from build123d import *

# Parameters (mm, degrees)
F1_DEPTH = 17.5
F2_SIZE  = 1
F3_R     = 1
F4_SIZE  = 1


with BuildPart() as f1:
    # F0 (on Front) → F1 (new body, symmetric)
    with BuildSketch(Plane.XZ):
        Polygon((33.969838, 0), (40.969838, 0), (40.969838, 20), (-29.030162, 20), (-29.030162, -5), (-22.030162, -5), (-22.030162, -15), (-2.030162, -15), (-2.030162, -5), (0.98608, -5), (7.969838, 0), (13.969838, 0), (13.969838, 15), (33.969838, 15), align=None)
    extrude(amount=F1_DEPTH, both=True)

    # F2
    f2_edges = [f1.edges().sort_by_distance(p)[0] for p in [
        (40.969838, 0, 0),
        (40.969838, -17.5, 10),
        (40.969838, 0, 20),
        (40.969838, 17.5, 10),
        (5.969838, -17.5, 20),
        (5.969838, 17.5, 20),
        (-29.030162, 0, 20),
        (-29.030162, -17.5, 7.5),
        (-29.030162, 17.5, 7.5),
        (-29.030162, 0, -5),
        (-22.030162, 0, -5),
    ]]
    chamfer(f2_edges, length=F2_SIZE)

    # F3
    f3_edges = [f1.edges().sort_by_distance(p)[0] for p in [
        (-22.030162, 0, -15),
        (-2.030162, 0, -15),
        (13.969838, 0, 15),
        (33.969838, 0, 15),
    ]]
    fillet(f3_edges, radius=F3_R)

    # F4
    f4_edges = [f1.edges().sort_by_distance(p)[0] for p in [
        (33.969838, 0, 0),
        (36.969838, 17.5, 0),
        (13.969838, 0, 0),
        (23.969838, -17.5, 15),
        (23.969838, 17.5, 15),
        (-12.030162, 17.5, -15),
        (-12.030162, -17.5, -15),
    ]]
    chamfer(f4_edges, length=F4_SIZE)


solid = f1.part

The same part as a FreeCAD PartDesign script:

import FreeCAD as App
import Part
import Sketcher
Q = App.Units.Quantity


def edges_at(feature, points):
    """Names of the edges that pass closest to the given points."""
    edges = feature.Shape.Edges
    near = lambda p: min(range(len(edges)), key=lambda i: edges[i].distToShape(Part.Vertex(*p))[0])
    return sorted({f"Edge{near(p) + 1}" for p in points})

doc = App.newDocument("Part")
body = doc.addObject("PartDesign::Body", "Body")

# Sketch on XZ plane
sketch1 = body.newObject("Sketcher::SketchObject", "Sketch")
sketch1.AttachmentSupport = (doc.getObject("XZ_Plane"), [""])
sketch1.MapMode = "FlatFace"
sketch1.addGeometry([
    Part.LineSegment(App.Vector(34, 0, 0), App.Vector(41, 0, 0)),  # 0
    Part.LineSegment(App.Vector(41, 0, 0), App.Vector(41, 20, 0)),  # 1
    Part.LineSegment(App.Vector(41, 20, 0), App.Vector(-29, 20, 0)),  # 2
    Part.LineSegment(App.Vector(-29, 20, 0), App.Vector(-29, -5, 0)),  # 3
    Part.LineSegment(App.Vector(-29, -5, 0), App.Vector(-22, -5, 0)),  # 4
    Part.LineSegment(App.Vector(-22, -5, 0), App.Vector(-22, -15, 0)),  # 5
    Part.LineSegment(App.Vector(-22, -15, 0), App.Vector(-2, -15, 0)),  # 6
    Part.LineSegment(App.Vector(-2, -15, 0), App.Vector(-2, -5, 0)),  # 7
    Part.LineSegment(App.Vector(-2, -5, 0), App.Vector(1, -5, 0)),  # 8
    Part.LineSegment(App.Vector(1, -5, 0), App.Vector(8, 0, 0)),  # 9
    Part.LineSegment(App.Vector(8, 0, 0), App.Vector(14, 0, 0)),  # 10
    Part.LineSegment(App.Vector(14, 0, 0), App.Vector(14, 15, 0)),  # 11
    Part.LineSegment(App.Vector(14, 15, 0), App.Vector(34, 15, 0)),  # 12
    Part.LineSegment(App.Vector(34, 15, 0), App.Vector(34, 0, 0)),  # 13
], False)
sketch1.addConstraint([
    Sketcher.Constraint("Coincident", 0, 2, 1, 1),
    Sketcher.Constraint("Coincident", 1, 2, 2, 1),
    Sketcher.Constraint("Coincident", 2, 2, 3, 1),
    Sketcher.Constraint("Coincident", 3, 2, 4, 1),
    Sketcher.Constraint("Coincident", 4, 2, 5, 1),
    Sketcher.Constraint("Coincident", 5, 2, 6, 1),
    Sketcher.Constraint("Coincident", 6, 2, 7, 1),
    Sketcher.Constraint("Coincident", 7, 2, 8, 1),
    Sketcher.Constraint("Coincident", 8, 2, 9, 1),
    Sketcher.Constraint("Coincident", 9, 2, 10, 1),
    Sketcher.Constraint("Coincident", 10, 2, 11, 1),
    Sketcher.Constraint("Coincident", 11, 2, 12, 1),
    Sketcher.Constraint("Coincident", 12, 2, 13, 1),
    Sketcher.Constraint("Coincident", 13, 2, 0, 1),
    Sketcher.Constraint("Horizontal", 0),
    Sketcher.Constraint("Vertical", 1),
    Sketcher.Constraint("Horizontal", 2),
    Sketcher.Constraint("Vertical", 3),
    Sketcher.Constraint("Horizontal", 4),
    Sketcher.Constraint("Vertical", 5),
    Sketcher.Constraint("Horizontal", 6),
    Sketcher.Constraint("Vertical", 7),
    Sketcher.Constraint("Horizontal", 8),
    Sketcher.Constraint("Horizontal", 10),
    Sketcher.Constraint("Vertical", 11),
    Sketcher.Constraint("Horizontal", 12),
    Sketcher.Constraint("Vertical", 13),
    Sketcher.Constraint("PointOnObject", 0, 2, -1),
    Sketcher.Constraint("PointOnObject", 9, 2, -1),
    Sketcher.Constraint("Horizontal", 4, 2, 7, 2),
    Sketcher.Constraint("Equal", 0, 4),
    Sketcher.Constraint("Equal", 6, 12),
    Sketcher.Constraint("Equal", 12, 1),
    Sketcher.Constraint("DistanceX", 0, 1, 0, 2, Q("7 mm")),
    Sketcher.Constraint("DistanceX", 2, 2, 2, 1, Q("70 mm")),
    Sketcher.Constraint("DistanceX", 6, 1, 6, 2, Q("20 mm")),
    Sketcher.Constraint("DistanceX", 10, 1, 10, 2, Q("6 mm")),
    Sketcher.Constraint("DistanceY", 3, 2, 3, 1, Q("25 mm")),
    Sketcher.Constraint("DistanceY", 5, 2, 5, 1, Q("10 mm")),
    Sketcher.Constraint("DistanceY", 11, 1, 11, 2, Q("15 mm")),
    Sketcher.Constraint("DistanceX", 8, 1, 8, 2, Q("3.016242 mm")),
    Sketcher.Constraint("DistanceX", -1, 1, 0, 2, Q("40.969838 mm")),
])
pad1 = body.newObject("PartDesign::Pad", "Pad")
pad1.Profile = sketch1
pad1.Length = 35
pad1.Midplane = True
doc.recompute()

chamfer = body.newObject("PartDesign::Chamfer", "Chamfer")
chamfer.Base = (pad1, edges_at(pad1, [
    (40.97, 0, 0),
    (40.97, -17.5, 10),
    (40.97, 0, 20),
    (40.97, 17.5, 10),
    (5.97, -17.5, 20),
    (5.97, 17.5, 20),
    (-29.03, 0, 20),
    (-29.03, -17.5, 7.5),
    (-29.03, 17.5, 7.5),
    (-29.03, 0, -5),
    (-22.03, 0, -5),
]))
chamfer.Size = 1
doc.recompute()

fillet = body.newObject("PartDesign::Fillet", "Fillet")
fillet.Base = (chamfer, edges_at(chamfer, [
    (-22.03, 0, -15),
    (-2.03, 0, -15),
    (13.97, 0, 15),
    (33.97, 0, 15),
]))
fillet.Radius = 1
doc.recompute()

chamfer2 = body.newObject("PartDesign::Chamfer", "Chamfer001")
chamfer2.Base = (fillet, edges_at(fillet, [
    (33.97, 0, 0),
    (36.97, 17.5, 0),
    (13.97, 0, 0),
    (23.97, -17.5, 15),
    (23.97, 17.5, 15),
    (-12.03, 17.5, -15),
    (-12.03, -17.5, -15),
]))
chamfer2.Size = 1

doc.recompute()
